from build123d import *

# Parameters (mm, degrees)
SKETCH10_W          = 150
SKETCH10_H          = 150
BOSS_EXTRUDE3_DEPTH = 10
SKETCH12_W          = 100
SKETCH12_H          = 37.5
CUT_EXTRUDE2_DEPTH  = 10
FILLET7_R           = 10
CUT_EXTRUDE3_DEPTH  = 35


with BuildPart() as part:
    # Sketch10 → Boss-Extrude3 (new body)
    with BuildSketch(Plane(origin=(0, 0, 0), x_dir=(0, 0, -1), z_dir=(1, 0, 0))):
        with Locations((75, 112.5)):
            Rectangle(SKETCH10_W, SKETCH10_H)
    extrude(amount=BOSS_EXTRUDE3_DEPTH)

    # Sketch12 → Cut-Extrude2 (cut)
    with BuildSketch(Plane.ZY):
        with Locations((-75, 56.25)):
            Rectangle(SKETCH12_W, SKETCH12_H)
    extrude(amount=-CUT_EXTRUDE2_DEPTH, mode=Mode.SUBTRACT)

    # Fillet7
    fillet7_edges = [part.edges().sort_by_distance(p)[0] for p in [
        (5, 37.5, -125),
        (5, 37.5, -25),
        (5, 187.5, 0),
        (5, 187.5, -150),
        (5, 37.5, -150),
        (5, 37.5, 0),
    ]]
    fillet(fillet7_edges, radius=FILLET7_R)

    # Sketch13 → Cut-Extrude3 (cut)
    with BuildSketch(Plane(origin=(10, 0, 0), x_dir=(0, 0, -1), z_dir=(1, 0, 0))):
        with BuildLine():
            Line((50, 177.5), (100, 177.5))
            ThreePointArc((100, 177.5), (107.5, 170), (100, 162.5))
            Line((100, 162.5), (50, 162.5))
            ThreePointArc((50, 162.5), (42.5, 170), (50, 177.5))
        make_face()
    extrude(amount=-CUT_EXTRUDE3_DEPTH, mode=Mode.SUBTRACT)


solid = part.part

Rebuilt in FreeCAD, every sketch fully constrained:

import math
import FreeCAD as App
import Part
import Sketcher

V = App.Vector
Q = App.Units.Quantity


def edges_at(feature, points):
    """Names of the edges that pass closest to the given points."""
    edges = feature.Shape.Edges
    near = lambda p: min(range(len(edges)), key=lambda i: edges[i].distToShape(Part.Vertex(*p))[0])
    return sorted({f"Edge{near(p) + 1}" for p in points})


def add_polygon(sketch, points):
    """Adds a closed chain of lines whose ends are joined by coincident constraints."""
    first, n = sketch.GeometryCount, len(points)
    for a, b in zip(points, points[1:] + points[:1]):
        sketch.addGeometry(Part.LineSegment(App.Vector(*a, 0), App.Vector(*b, 0)), False)
    for i in range(n):
        sketch.addConstraint(Sketcher.Constraint("Coincident", first + i, 2, first + (i + 1) % n, 1))

doc = App.newDocument("Part")
body = doc.addObject("PartDesign::Body", "Body")

# Sketch on YZ plane
sketch1 = doc.addObject("Sketcher::SketchObject", "Sketch")
body.addObject(sketch1)
sketch1.AttachmentSupport = (doc.YZ_Plane, [""])
sketch1.MapMode = "FlatFace"
add_polygon(sketch1, [(188, 0), (38, 0), (38, -150), (188, -150)])  # lines 0-3
sketch1.addConstraint([
    Sketcher.Constraint("Horizontal", 0),
    Sketcher.Constraint("Vertical", 1),
    Sketcher.Constraint("Horizontal", 2),
    Sketcher.Constraint("Vertical", 3),
    Sketcher.Constraint("PointOnObject", 0, 2, -1),
    Sketcher.Constraint("Equal", 2, 1),
    Sketcher.Constraint("DistanceX", 0, 2, 0, 1, Q("150 mm")),
    Sketcher.Constraint("DistanceX", -1, 1, 0, 2, Q("37.5 mm")),
])
pad1 = doc.addObject("PartDesign::Pad", "Pad")
body.addObject(pad1)
pad1.Profile = sketch1
pad1.Length = 10

# Sketch on YZ plane
sketch2 = doc.addObject("Sketcher::SketchObject", "Sketch001")
body.addObject(sketch2)
sketch2.AttachmentSupport = (doc.YZ_Plane, [""])
sketch2.MapMode = "FlatFace"
add_polygon(sketch2, [(75, -125), (38, -125), (38, -25), (75, -25)])  # lines 0-3
sketch2.addConstraint([
    Sketcher.Constraint("Horizontal", 0),
    Sketcher.Constraint("Vertical", 1),
    Sketcher.Constraint("Horizontal", 2),
    Sketcher.Constraint("Vertical", 3),
    Sketcher.Constraint("DistanceY", 1, 1, 1, 2, Q("100 mm")),
    Sketcher.Constraint("DistanceX", 0, 2, 0, 1, Q("37.5 mm")),
    Sketcher.Constraint("DistanceY", 0, 2, -1, 1, Q("125 mm")),
    Sketcher.Constraint("DistanceX", -1, 1, 2, 2, Q("75 mm")),
])
pocket1 = doc.addObject("PartDesign::Pocket", "Pocket")
body.addObject(pocket1)
pocket1.Profile = sketch2
pocket1.Length = 10
pocket1.Reversed = True
doc.recompute()

fillet = doc.addObject("PartDesign::Fillet", "Fillet")
body.addObject(fillet)
fillet.Base = (pocket1, edges_at(pocket1, [
    (5, 37.5, -125),
    (5, 37.5, -25),
    (5, 187.5, 0),
    (5, 187.5, -150),
    (5, 37.5, -150),
    (5, 37.5, 0),
]))
fillet.Radius = 10

# Sketch on YZ plane
sketch3 = doc.addObject("Sketcher::SketchObject", "Sketch002")
body.addObject(sketch3)
sketch3.AttachmentSupport = (doc.YZ_Plane, [""])
sketch3.MapMode = "FlatFace"
sketch3.AttachmentOffset = App.Placement(V(0, 0, 10), App.Rotation())
sketch3.addGeometry([
    Part.LineSegment(V(178, -100, 0), V(178, -50, 0)),
    Part.ArcOfCircle(Part.Circle(V(170, -50, 0), V(0, 0, 1), 8), math.radians(0), math.radians(180)),
    Part.LineSegment(V(162, -50, 0), V(162, -100, 0)),
    Part.ArcOfCircle(Part.Circle(V(170, -100, 0), V(0, 0, 1), 8), math.radians(180), math.radians(360)),
], False)
sketch3.addConstraint([
    Sketcher.Constraint("Tangent", 0, 2, 1, 1),
    Sketcher.Constraint("Tangent", 1, 2, 2, 1),
    Sketcher.Constraint("Tangent", 2, 2, 3, 1),
    Sketcher.Constraint("Tangent", 3, 2, 0, 1),
    Sketcher.Constraint("Vertical", 0),
    Sketcher.Constraint("Vertical", 2),
    Sketcher.Constraint("Radius", 1, Q("7.5 mm")),
    Sketcher.Constraint("DistanceY", 0, 1, 0, 2, Q("50 mm")),
    Sketcher.Constraint("DistanceX", -1, 1, 1, 3, Q("170 mm")),
    Sketcher.Constraint("DistanceY", 1, 3, -1, 1, Q("50 mm")),
])
pocket2 = doc.addObject("PartDesign::Pocket", "Pocket001")
body.addObject(pocket2)
pocket2.Profile = sketch3
pocket2.Length = 35

doc.recompute()
